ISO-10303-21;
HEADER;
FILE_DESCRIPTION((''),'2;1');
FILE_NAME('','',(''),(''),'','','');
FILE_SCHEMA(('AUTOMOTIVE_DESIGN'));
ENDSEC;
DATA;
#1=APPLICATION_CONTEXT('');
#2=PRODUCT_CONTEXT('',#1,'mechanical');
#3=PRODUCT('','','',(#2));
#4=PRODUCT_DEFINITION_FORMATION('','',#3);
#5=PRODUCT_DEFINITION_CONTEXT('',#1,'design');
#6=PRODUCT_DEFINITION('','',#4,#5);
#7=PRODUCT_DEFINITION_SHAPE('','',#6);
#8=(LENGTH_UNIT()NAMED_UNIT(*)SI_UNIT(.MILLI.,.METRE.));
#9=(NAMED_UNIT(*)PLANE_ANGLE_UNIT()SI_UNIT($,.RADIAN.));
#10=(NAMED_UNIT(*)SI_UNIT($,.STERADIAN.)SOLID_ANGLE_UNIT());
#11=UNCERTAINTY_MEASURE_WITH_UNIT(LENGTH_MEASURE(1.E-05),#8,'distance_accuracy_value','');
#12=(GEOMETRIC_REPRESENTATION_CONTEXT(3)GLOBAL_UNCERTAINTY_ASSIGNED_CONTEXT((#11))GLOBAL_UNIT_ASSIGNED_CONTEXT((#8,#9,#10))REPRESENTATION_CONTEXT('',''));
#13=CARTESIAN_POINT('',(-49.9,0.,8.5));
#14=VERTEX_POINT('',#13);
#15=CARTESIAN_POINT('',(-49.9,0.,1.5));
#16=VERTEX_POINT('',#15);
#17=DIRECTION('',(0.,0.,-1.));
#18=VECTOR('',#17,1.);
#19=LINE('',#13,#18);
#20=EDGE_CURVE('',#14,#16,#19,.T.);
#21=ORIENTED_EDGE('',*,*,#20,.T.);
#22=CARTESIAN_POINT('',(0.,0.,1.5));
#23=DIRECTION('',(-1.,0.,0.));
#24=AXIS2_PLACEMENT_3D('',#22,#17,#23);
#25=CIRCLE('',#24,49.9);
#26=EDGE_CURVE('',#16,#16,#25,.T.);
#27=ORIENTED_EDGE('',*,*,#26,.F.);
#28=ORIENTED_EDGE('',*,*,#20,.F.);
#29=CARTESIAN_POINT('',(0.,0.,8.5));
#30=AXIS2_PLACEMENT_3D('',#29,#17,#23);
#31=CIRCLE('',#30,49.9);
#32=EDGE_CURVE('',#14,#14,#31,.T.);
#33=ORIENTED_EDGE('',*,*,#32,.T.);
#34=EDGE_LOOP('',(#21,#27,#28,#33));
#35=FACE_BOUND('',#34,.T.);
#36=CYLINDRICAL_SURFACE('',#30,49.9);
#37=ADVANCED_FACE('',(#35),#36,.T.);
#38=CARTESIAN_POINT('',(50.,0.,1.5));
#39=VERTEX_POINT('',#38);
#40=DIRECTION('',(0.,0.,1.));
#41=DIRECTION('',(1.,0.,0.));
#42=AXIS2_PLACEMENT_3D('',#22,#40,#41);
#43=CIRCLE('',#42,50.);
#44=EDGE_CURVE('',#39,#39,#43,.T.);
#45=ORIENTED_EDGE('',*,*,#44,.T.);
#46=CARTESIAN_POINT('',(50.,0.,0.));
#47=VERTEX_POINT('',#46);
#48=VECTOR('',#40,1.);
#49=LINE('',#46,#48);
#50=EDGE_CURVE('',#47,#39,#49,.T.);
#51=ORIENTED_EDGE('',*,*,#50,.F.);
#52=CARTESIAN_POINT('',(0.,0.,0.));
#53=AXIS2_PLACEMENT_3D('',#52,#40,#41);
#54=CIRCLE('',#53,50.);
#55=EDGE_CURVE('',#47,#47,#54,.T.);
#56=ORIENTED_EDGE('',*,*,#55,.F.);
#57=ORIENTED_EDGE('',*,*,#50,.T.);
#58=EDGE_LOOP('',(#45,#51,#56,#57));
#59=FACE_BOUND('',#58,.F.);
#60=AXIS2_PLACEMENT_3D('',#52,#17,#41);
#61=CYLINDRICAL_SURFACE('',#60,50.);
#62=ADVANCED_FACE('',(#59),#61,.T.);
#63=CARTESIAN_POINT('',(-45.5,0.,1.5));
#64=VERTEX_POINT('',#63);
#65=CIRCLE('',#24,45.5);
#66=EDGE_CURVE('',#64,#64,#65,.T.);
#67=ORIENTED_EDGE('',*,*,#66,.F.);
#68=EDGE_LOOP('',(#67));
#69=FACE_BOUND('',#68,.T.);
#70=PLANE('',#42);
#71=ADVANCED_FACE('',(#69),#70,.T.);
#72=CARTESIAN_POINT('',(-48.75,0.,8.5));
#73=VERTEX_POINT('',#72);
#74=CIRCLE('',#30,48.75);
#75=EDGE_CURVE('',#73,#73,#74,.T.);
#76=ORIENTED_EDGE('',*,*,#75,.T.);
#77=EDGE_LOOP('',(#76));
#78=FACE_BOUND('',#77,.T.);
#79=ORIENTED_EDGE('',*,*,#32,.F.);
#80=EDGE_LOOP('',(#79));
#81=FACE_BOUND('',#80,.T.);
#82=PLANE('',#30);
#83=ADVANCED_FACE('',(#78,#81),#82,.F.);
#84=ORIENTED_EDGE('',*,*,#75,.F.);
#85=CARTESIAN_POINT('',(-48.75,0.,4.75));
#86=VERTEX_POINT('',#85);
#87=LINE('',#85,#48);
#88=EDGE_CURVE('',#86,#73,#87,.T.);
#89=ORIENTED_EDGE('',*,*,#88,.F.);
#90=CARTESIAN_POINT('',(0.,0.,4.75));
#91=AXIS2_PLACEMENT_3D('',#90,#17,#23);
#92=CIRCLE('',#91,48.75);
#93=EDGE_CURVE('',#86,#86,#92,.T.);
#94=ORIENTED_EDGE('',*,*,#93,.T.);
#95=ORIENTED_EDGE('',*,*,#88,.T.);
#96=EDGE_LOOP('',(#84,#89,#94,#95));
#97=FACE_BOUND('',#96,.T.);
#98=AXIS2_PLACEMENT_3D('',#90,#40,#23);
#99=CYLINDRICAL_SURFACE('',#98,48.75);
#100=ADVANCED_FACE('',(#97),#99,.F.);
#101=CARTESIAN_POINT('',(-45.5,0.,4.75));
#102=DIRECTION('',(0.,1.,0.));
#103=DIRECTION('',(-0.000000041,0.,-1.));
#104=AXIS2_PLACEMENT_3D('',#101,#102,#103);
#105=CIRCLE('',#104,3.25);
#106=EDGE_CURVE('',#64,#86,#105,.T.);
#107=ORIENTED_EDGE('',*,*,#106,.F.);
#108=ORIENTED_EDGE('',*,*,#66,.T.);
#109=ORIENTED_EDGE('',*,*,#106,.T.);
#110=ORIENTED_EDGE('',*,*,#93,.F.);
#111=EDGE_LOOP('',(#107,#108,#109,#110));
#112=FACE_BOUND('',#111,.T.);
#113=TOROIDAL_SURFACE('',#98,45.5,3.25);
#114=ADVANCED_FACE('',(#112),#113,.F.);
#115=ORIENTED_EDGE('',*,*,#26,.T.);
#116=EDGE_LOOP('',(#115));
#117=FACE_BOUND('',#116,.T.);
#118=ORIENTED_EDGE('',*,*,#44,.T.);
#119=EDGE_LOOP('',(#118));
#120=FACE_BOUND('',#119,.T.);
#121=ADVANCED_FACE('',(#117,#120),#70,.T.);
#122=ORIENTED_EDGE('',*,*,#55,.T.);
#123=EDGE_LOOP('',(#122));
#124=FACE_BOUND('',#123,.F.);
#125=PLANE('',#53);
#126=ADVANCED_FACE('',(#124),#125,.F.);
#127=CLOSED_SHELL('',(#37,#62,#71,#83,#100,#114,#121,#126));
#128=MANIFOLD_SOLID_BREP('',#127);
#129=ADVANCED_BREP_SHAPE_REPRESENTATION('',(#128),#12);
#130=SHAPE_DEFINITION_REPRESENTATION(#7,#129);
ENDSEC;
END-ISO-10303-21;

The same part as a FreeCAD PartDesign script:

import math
import FreeCAD as App
import Part
import Sketcher

V = App.Vector
Q = App.Units.Quantity

doc = App.newDocument("Part")
body = doc.addObject("PartDesign::Body", "Body")

# Sketch on XY plane
sketch1 = body.newObject("Sketcher::SketchObject", "Sketch")
sketch1.AttachmentSupport = (doc.getObject("XY_Plane"), [""])
sketch1.MapMode = "FlatFace"
sketch1.addGeometry(Part.Circle(V(0, 0, 0), V(0, 0, 1), 50), False)
sketch1.addConstraint(Sketcher.Constraint("Coincident", 0, 3, -1, 1))
sketch1.addConstraint(Sketcher.Constraint("Diameter", 0, Q("100 mm")))
pad1 = body.newObject("PartDesign::Pad", "Pad")
pad1.Profile = sketch1
pad1.Length = 1.5

# Sketch on XZ plane
sketch2 = body.newObject("Sketcher::SketchObject", "Sketch001")
sketch2.AttachmentSupport = (doc.getObject("XZ_Plane"), [""])
sketch2.MapMode = "FlatFace"
sketch2.addGeometry(Part.LineSegment(V(-49.9, 8.5, 0), V(-49.9, 0, 0)), False)
sketch2.addGeometry(Part.LineSegment(V(-49.9, 0, 0), V(-45.5, 0, 0)), False)
sketch2.addGeometry(Part.LineSegment(V(-45.5, 0, 0), V(-45.5, 1.5, 0)), False)
sketch2.addGeometry(Part.ArcOfCircle(Part.Circle(V(-45.5, 4.8, 0), V(0, 0, 1), 3.3), math.radians(-180), math.radians(-90)), False)
sketch2.addGeometry(Part.LineSegment(V(-48.8, 4.8, 0), V(-48.8, 8.5, 0)), False)
sketch2.addGeometry(Part.LineSegment(V(-48.8, 8.5, 0), V(-49.9, 8.5, 0)), False)
sketch2.addConstraint(Sketcher.Constraint("Coincident", 0, 2, 1, 1))
sketch2.addConstraint(Sketcher.Constraint("Coincident", 1, 2, 2, 1))
sketch2.addConstraint(Sketcher.Constraint("Coincident", 2, 2, 3, 2))
sketch2.addConstraint(Sketcher.Constraint("Tangent", 3, 1, 4, 1))
sketch2.addConstraint(Sketcher.Constraint("Coincident", 4, 2, 5, 1))
sketch2.addConstraint(Sketcher.Constraint("Coincident", 5, 2, 0, 1))
sketch2.addConstraint(Sketcher.Constraint("Vertical", 0))
sketch2.addConstraint(Sketcher.Constraint("Horizontal", 1))
sketch2.addConstraint(Sketcher.Constraint("Vertical", 2))
sketch2.addConstraint(Sketcher.Constraint("Vertical", 4))
sketch2.addConstraint(Sketcher.Constraint("Horizontal", 5))
sketch2.addConstraint(Sketcher.Constraint("PointOnObject", 0, 2, -1))
sketch2.addConstraint(Sketcher.Constraint("Vertical", 3, 3, 1, 2))
sketch2.addConstraint(Sketcher.Constraint("Radius", 3, Q("3.25 mm")))
sketch2.addConstraint(Sketcher.Constraint("DistanceX", 1, 1, 1, 2, Q("4.4 mm")))
sketch2.addConstraint(Sketcher.Constraint("DistanceY", 0, 2, 0, 1, Q("8.5 mm")))
sketch2.addConstraint(Sketcher.Constraint("DistanceY", 2, 1, 2, 2, Q("1.5 mm")))
sketch2.addConstraint(Sketcher.Constraint("DistanceX", 3, 3, -1, 1, Q("45.5 mm")))
revolution = body.newObject("PartDesign::Revolution", "Revolution")
revolution.Profile = sketch2
revolution.ReferenceAxis = (sketch2, ["V_Axis"])
revolution.Angle = 360

doc.recompute()
